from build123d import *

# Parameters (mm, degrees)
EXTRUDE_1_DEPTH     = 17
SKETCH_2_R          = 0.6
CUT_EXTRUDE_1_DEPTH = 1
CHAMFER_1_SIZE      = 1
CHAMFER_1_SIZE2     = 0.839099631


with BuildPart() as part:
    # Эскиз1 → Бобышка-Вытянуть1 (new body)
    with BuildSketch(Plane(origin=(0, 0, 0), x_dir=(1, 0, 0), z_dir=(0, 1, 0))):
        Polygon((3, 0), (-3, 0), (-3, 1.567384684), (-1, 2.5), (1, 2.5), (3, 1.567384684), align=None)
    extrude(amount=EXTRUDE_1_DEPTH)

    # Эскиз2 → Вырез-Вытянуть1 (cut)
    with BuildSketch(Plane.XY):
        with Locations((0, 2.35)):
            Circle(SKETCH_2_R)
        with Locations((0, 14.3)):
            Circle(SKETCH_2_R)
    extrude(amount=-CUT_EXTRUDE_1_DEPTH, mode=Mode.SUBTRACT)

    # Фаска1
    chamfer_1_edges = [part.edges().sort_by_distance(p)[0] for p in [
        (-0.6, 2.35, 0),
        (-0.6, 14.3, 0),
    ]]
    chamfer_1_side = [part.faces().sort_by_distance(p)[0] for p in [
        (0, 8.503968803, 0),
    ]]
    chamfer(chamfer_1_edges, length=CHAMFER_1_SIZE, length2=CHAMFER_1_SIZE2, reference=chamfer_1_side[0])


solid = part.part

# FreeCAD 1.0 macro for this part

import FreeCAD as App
import Part
import Sketcher

V = App.Vector
Q = App.Units.Quantity


def edges_at(feature, points):
    """Names of the edges that pass closest to the given points."""
    edges = feature.Shape.Edges
    near = lambda p: min(range(len(edges)), key=lambda i: edges[i].distToShape(Part.Vertex(*p))[0])
    return sorted({f"Edge{near(p) + 1}" for p in points})


def add_polygon(sketch, points):
    """Adds a closed chain of lines whose ends are joined by coincident constraints."""
    first, n = sketch.GeometryCount, len(points)
    for a, b in zip(points, points[1:] + points[:1]):
        sketch.addGeometry(Part.LineSegment(App.Vector(*a, 0), App.Vector(*b, 0)), False)
    for i in range(n):
        sketch.addConstraint(Sketcher.Constraint("Coincident", first + i, 2, first + (i + 1) % n, 1))

doc = App.newDocument("Part")
body = doc.addObject("PartDesign::Body", "Body")

sketch1 = body.newObject("Sketcher::SketchObject", "Sketch")
sketch1.AttachmentSupport = (doc.getObject("XZ_Plane"), [""])
sketch1.MapMode = "FlatFace"
add_polygon(sketch1, [(-3, 0), (3, 0), (3, -1.6), (1, -2.5), (-1, -2.5), (-3, -1.6)])
sketch1.addConstraint([
    Sketcher.Constraint("Horizontal", 0),
    Sketcher.Constraint("Vertical", 1),
    Sketcher.Constraint("Horizontal", 3),
    Sketcher.Constraint("Vertical", 5),
    Sketcher.Constraint("Symmetric", 0, 2, 5, 2, -1, 1),
    Sketcher.Constraint("Horizontal", 1, 2, 4, 2),
    Sketcher.Constraint("Equal", 2, 4),
    Sketcher.Constraint("DistanceX", 0, 1, 0, 2, 6.0),
    Sketcher.Constraint("DistanceX", 3, 2, 3, 1, 2.0),
    Sketcher.Constraint("Angle", 2, Q("-155 deg")),
    Sketcher.Constraint("DistanceY", 2, 2, -1, 1, 2.5),
])
pad1 = body.newObject("PartDesign::Pad", "Pad")
pad1.Profile = sketch1
pad1.Length = 17
pad1.Reversed = True

sketch2 = body.newObject("Sketcher::SketchObject", "Sketch001")
sketch2.AttachmentSupport = (doc.getObject("XY_Plane"), [""])
sketch2.MapMode = "FlatFace"
sketch2.addGeometry([
    Part.Circle(V(0, 2.4, 0), V(0, 0, 1), 0.6),
    Part.Circle(V(0, 14.3, 0), V(0, 0, 1), 0.6),
], False)
sketch2.addConstraint([
    Sketcher.Constraint("Equal", 0, 1),
    Sketcher.Constraint("PointOnObject", 0, 3, -2),
    Sketcher.Constraint("PointOnObject", 1, 3, -2),
    Sketcher.Constraint("Diameter", 0, 1.2),
    Sketcher.Constraint("DistanceY", -1, 1, 1, 3, 14.3),
    Sketcher.Constraint("DistanceY", -1, 1, 0, 3, 2.35),
])
pocket1 = body.newObject("PartDesign::Pocket", "Pocket")
pocket1.Profile = sketch2
pocket1.Length = 1
doc.recompute()

chamfer = body.newObject("PartDesign::Chamfer", "Chamfer")
chamfer.Base = (pocket1, edges_at(pocket1, [(-0.6, 2.35, 0), (-0.6, 14.3, 0)]))
chamfer.ChamferType = "Two distances"
chamfer.Size = 1
chamfer.Size2 = 0.8391

doc.recompute()
